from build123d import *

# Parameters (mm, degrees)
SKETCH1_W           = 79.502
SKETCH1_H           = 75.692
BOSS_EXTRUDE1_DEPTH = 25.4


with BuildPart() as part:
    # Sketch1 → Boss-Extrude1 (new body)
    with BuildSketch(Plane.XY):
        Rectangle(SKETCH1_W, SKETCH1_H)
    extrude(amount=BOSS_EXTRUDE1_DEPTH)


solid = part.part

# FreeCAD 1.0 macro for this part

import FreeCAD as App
import Part
import Sketcher
Q = App.Units.Quantity

doc = App.newDocument("Part")
body = doc.addObject("PartDesign::Body", "Body")

sketch1 = body.newObject("Sketcher::SketchObject", "Sketch")
sketch1.AttachmentSupport = (doc.getObject("XY_Plane"), [""])
sketch1.MapMode = "FlatFace"
sketch1.addGeometry(Part.LineSegment(App.Vector(-40, 38, 0), App.Vector(-40, -38, 0)), False)
sketch1.addGeometry(Part.LineSegment(App.Vector(-40, -38, 0), App.Vector(40, -38, 0)), False)
sketch1.addGeometry(Part.LineSegment(App.Vector(40, -38, 0), App.Vector(40, 38, 0)), False)
sketch1.addGeometry(Part.LineSegment(App.Vector(40, 38, 0), App.Vector(-40, 38, 0)), False)
sketch1.addConstraint(Sketcher.Constraint("Coincident", 0, 2, 1, 1))
sketch1.addConstraint(Sketcher.Constraint("Coincident", 1, 2, 2, 1))
sketch1.addConstraint(Sketcher.Constraint("Coincident", 2, 2, 3, 1))
sketch1.addConstraint(Sketcher.Constraint("Coincident", 3, 2, 0, 1))
sketch1.addConstraint(Sketcher.Constraint("Vertical", 0))
sketch1.addConstraint(Sketcher.Constraint("Horizontal", 1))
sketch1.addConstraint(Sketcher.Constraint("Vertical", 2))
sketch1.addConstraint(Sketcher.Constraint("Horizontal", 3))
sketch1.addConstraint(Sketcher.Constraint("Symmetric", 0, 2, 2, 2, -1, 1))
sketch1.addConstraint(Sketcher.Constraint("DistanceX", 1, 1, 1, 2, Q("3.13 in")))
sketch1.addConstraint(Sketcher.Constraint("DistanceY", 0, 2, 0, 1, Q("2.98 in")))
pad1 = body.newObject("PartDesign::Pad", "Pad")
pad1.Profile = sketch1
pad1.Length = Q("1 in")

doc.recompute()
